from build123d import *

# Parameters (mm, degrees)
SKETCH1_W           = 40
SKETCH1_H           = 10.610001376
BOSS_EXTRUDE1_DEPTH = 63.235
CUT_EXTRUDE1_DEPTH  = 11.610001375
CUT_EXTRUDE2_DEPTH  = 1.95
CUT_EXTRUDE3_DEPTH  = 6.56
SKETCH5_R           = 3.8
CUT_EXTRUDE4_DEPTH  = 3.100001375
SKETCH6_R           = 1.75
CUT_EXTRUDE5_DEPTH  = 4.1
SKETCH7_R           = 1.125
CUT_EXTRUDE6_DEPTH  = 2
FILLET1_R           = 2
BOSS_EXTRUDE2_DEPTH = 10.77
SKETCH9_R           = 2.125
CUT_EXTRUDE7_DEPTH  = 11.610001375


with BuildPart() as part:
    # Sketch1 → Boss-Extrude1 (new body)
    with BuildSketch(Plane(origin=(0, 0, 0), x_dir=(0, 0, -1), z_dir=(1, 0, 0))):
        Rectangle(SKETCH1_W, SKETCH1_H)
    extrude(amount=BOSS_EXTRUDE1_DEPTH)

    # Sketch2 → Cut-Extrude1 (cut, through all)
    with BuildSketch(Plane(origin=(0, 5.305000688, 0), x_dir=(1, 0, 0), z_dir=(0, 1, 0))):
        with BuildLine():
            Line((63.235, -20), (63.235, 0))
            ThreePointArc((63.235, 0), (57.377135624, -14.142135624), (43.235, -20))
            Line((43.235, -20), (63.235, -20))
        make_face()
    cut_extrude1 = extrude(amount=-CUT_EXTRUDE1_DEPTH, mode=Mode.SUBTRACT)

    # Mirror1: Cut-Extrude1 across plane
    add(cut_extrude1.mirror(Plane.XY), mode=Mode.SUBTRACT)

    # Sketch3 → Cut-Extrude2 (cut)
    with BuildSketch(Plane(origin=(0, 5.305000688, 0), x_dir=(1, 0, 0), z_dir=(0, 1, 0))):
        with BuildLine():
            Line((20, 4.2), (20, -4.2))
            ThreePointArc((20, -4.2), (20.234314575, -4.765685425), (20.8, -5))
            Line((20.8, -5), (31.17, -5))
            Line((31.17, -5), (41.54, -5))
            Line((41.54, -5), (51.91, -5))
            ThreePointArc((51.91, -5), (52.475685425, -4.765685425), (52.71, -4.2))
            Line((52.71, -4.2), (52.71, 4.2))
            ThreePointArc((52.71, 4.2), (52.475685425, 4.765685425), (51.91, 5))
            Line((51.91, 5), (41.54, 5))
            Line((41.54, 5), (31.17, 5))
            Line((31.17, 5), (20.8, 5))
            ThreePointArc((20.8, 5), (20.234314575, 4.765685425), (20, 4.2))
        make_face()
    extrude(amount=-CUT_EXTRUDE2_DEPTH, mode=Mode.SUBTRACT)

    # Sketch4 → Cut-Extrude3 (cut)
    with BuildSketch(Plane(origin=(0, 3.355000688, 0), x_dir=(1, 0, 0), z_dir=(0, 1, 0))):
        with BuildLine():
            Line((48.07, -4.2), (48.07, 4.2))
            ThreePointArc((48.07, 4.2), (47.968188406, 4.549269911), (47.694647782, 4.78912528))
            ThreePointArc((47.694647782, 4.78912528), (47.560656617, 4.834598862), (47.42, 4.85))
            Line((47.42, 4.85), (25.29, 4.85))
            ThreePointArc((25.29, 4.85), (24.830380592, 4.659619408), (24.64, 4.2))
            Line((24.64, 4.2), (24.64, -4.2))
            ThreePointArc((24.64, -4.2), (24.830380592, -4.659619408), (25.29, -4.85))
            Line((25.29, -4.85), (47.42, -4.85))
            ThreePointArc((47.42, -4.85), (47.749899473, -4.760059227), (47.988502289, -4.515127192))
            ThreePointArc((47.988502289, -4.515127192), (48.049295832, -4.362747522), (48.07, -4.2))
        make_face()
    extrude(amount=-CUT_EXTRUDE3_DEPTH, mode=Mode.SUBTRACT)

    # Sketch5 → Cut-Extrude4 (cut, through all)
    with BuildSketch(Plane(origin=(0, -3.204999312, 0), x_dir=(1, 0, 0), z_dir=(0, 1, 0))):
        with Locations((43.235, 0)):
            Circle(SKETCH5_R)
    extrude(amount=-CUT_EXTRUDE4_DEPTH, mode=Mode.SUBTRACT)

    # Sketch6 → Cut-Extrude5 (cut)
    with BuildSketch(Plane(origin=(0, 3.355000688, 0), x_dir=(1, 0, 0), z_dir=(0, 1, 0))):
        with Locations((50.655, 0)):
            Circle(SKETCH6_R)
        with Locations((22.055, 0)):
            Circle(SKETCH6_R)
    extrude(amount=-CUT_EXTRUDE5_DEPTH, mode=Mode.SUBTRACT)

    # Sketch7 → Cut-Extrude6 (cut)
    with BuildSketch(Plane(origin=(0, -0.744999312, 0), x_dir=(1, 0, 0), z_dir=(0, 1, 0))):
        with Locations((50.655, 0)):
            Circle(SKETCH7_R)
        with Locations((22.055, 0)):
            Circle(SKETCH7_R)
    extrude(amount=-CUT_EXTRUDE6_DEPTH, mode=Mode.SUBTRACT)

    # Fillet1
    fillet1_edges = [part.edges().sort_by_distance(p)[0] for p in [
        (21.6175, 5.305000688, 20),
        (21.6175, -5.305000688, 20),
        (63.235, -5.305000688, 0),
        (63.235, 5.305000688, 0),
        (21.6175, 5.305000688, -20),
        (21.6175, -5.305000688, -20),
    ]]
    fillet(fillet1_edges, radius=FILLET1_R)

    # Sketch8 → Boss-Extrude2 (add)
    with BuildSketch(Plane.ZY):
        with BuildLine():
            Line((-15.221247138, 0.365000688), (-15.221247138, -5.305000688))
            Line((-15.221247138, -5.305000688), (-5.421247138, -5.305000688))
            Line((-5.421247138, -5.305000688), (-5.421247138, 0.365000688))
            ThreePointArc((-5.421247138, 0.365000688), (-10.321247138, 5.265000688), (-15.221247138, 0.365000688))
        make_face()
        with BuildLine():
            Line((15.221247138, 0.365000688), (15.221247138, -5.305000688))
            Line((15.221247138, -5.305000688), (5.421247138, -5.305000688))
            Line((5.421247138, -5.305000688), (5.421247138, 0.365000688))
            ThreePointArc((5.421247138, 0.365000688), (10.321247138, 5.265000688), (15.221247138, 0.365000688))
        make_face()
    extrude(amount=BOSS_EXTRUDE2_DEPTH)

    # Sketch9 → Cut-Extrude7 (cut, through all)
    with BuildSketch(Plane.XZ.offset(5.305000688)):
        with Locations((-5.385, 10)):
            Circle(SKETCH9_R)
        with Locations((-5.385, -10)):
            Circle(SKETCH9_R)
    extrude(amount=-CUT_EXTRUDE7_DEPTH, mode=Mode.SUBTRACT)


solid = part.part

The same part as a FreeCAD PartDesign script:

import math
import FreeCAD as App
import Part
import Sketcher
Q = App.Units.Quantity


def edges_at(feature, points):
    """Names of the edges that pass closest to the given points."""
    edges = feature.Shape.Edges
    near = lambda p: min(range(len(edges)), key=lambda i: edges[i].distToShape(Part.Vertex(*p))[0])
    return sorted({f"Edge{near(p) + 1}" for p in points})

doc = App.newDocument("Part")
body = doc.addObject("PartDesign::Body", "Body")

# Sketch on YZ plane
sketch1 = doc.addObject("Sketcher::SketchObject", "Sketch")
body.addObject(sketch1)
sketch1.AttachmentSupport = (doc.YZ_Plane, [""])
sketch1.MapMode = "FlatFace"
sketch1.addGeometry(Part.LineSegment(App.Vector(5, 20, 0), App.Vector(-5, 20, 0)), False)
sketch1.addGeometry(Part.LineSegment(App.Vector(-5, 20, 0), App.Vector(-5, -20, 0)), False)
sketch1.addGeometry(Part.LineSegment(App.Vector(-5, -20, 0), App.Vector(5, -20, 0)), False)
sketch1.addGeometry(Part.LineSegment(App.Vector(5, -20, 0), App.Vector(5, 20, 0)), False)
sketch1.addConstraint(Sketcher.Constraint("Coincident", 0, 2, 1, 1))
sketch1.addConstraint(Sketcher.Constraint("Coincident", 1, 2, 2, 1))
sketch1.addConstraint(Sketcher.Constraint("Coincident", 2, 2, 3, 1))
sketch1.addConstraint(Sketcher.Constraint("Coincident", 3, 2, 0, 1))
sketch1.addConstraint(Sketcher.Constraint("Horizontal", 0))
sketch1.addConstraint(Sketcher.Constraint("Vertical", 1))
sketch1.addConstraint(Sketcher.Constraint("Horizontal", 2))
sketch1.addConstraint(Sketcher.Constraint("Vertical", 3))
sketch1.addConstraint(Sketcher.Constraint("Symmetric", 0, 2, 2, 2, -1, 1))
sketch1.addConstraint(Sketcher.Constraint("DistanceY", 1, 2, 1, 1, Q("40 mm")))
sketch1.addConstraint(Sketcher.Constraint("DistanceX", 0, 2, 0, 1, Q("10.610001 mm")))
pad1 = doc.addObject("PartDesign::Pad", "Pad")
body.addObject(pad1)
pad1.Profile = sketch1
pad1.Length = 63.235

# Sketch on XZ plane
sketch2 = doc.addObject("Sketcher::SketchObject", "Sketch001")
body.addObject(sketch2)
sketch2.AttachmentSupport = (doc.XZ_Plane, [""])
sketch2.MapMode = "FlatFace"
sketch2.AttachmentOffset = App.Placement(App.Vector(0, 0, -5.305001), App.Rotation())
sketch2.addGeometry(Part.LineSegment(App.Vector(63, 20, 0), App.Vector(63, 0, 0)), False)
sketch2.addGeometry(Part.ArcOfCircle(Part.Circle(App.Vector(43, 0, 0), App.Vector(0, 0, 1), 20), math.radians(0), math.radians(90)), False)
sketch2.addGeometry(Part.LineSegment(App.Vector(43, 20, 0), App.Vector(63, 20, 0)), False)
sketch2.addConstraint(Sketcher.Constraint("Tangent", 0, 2, 1, 1))
sketch2.addConstraint(Sketcher.Constraint("Tangent", 1, 2, 2, 1))
sketch2.addConstraint(Sketcher.Constraint("Coincident", 2, 2, 0, 1))
sketch2.addConstraint(Sketcher.Constraint("Vertical", 0))
sketch2.addConstraint(Sketcher.Constraint("Horizontal", 2))
sketch2.addConstraint(Sketcher.Constraint("PointOnObject", 1, 3, -1))
sketch2.addConstraint(Sketcher.Constraint("Radius", 1, Q("20 mm")))
sketch2.addConstraint(Sketcher.Constraint("DistanceX", -1, 1, 1, 3, Q("43.235 mm")))
pocket1 = doc.addObject("PartDesign::Pocket", "Pocket")
body.addObject(pocket1)
pocket1.Profile = sketch2
pocket1.Type = "ThroughAll"
pocket1.Reversed = True
doc.recompute()

mirrored = doc.addObject("PartDesign::Mirrored", "Mirrored")
body.addObject(mirrored)
mirrored.Originals = [pocket1]
mirrored.MirrorPlane = (doc.XY_Plane, [""])
body.Tip = mirrored

# Sketch on XZ plane
sketch3 = doc.addObject("Sketcher::SketchObject", "Sketch002")
body.addObject(sketch3)
sketch3.AttachmentSupport = (doc.XZ_Plane, [""])
sketch3.MapMode = "FlatFace"
sketch3.AttachmentOffset = App.Placement(App.Vector(0, 0, -5.305001), App.Rotation())
sketch3.addGeometry(Part.LineSegment(App.Vector(20, -4.2, 0), App.Vector(20, 4.2, 0)), False)
sketch3.addGeometry(Part.ArcOfCircle(Part.Circle(App.Vector(20.8, 4.2, 0), App.Vector(0, 0, 1), 0.8), math.radians(90), math.radians(180)), False)
sketch3.addGeometry(Part.LineSegment(App.Vector(20.8, 5, 0), App.Vector(51.9, 5, 0)), False)
sketch3.addGeometry(Part.ArcOfCircle(Part.Circle(App.Vector(51.9, 4.2, 0), App.Vector(0, 0, 1), 0.8), math.radians(0), math.radians(90)), False)
sketch3.addGeometry(Part.LineSegment(App.Vector(52.7, 4.2, 0), App.Vector(52.7, -4.2, 0)), False)
sketch3.addGeometry(Part.ArcOfCircle(Part.Circle(App.Vector(51.9, -4.2, 0), App.Vector(0, 0, 1), 0.8), math.radians(-90), math.radians(0)), False)
sketch3.addGeometry(Part.LineSegment(App.Vector(51.9, -5, 0), App.Vector(20.8, -5, 0)), False)
sketch3.addGeometry(Part.ArcOfCircle(Part.Circle(App.Vector(20.8, -4.2, 0), App.Vector(0, 0, 1), 0.8), math.radians(180), math.radians(270)), False)
sketch3.addConstraint(Sketcher.Constraint("Tangent", 0, 2, 1, 2))
sketch3.addConstraint(Sketcher.Constraint("Tangent", 1, 1, 2, 1))
sketch3.addConstraint(Sketcher.Constraint("Tangent", 2, 2, 3, 2))
sketch3.addConstraint(Sketcher.Constraint("Tangent", 3, 1, 4, 1))
sketch3.addConstraint(Sketcher.Constraint("Tangent", 4, 2, 5, 2))
sketch3.addConstraint(Sketcher.Constraint("Tangent", 5, 1, 6, 1))
sketch3.addConstraint(Sketcher.Constraint("Tangent", 6, 2, 7, 2))
sketch3.addConstraint(Sketcher.Constraint("Tangent", 7, 1, 0, 1))
sketch3.addConstraint(Sketcher.Constraint("Vertical", 0))
sketch3.addConstraint(Sketcher.Constraint("Horizontal", 2))
sketch3.addConstraint(Sketcher.Constraint("Vertical", 4))
sketch3.addConstraint(Sketcher.Constraint("Horizontal", 6))
sketch3.addConstraint(Sketcher.Constraint("Equal", 1, 3))
sketch3.addConstraint(Sketcher.Constraint("Equal", 3, 5))
sketch3.addConstraint(Sketcher.Constraint("Equal", 5, 7))
sketch3.addConstraint(Sketcher.Constraint("Radius", 1, Q("0.8 mm")))
sketch3.addConstraint(Sketcher.Constraint("DistanceY", 0, 1, 0, 2, Q("8.4 mm")))
sketch3.addConstraint(Sketcher.Constraint("DistanceX", -1, 1, 0, 2, Q("20 mm")))
sketch3.addConstraint(Sketcher.Constraint("DistanceY", -1, 1, 1, 1, Q("5 mm")))
sketch3.addConstraint(Sketcher.Constraint("DistanceX", 2, 1, 2, 2, Q("31.11 mm")))
pocket2 = doc.addObject("PartDesign::Pocket", "Pocket001")
body.addObject(pocket2)
pocket2.Profile = sketch3
pocket2.Length = 1.95
pocket2.Reversed = True

# Sketch on XZ plane
sketch4 = doc.addObject("Sketcher::SketchObject", "Sketch003")
body.addObject(sketch4)
sketch4.AttachmentSupport = (doc.XZ_Plane, [""])
sketch4.MapMode = "FlatFace"
sketch4.AttachmentOffset = App.Placement(App.Vector(0, 0, -3.355001), App.Rotation())
sketch4.addGeometry(Part.LineSegment(App.Vector(48.07, 4.2, 0), App.Vector(48.07, -4.2, 0)), False)
sketch4.addGeometry(Part.ArcOfCircle(Part.Circle(App.Vector(47.42, -4.2, 0), App.Vector(0, 0, 1), 0.65), math.radians(-65), math.radians(0)), False)
sketch4.addGeometry(Part.ArcOfCircle(Part.Circle(App.Vector(47.42, -4.2, 0), App.Vector(0, 0, 1), 0.65), math.radians(-90), math.radians(-65)), False)
sketch4.addGeometry(Part.LineSegment(App.Vector(47.42, -4.85, 0), App.Vector(25.29, -4.85, 0)), False)
sketch4.addGeometry(Part.ArcOfCircle(Part.Circle(App.Vector(25.29, -4.2, 0), App.Vector(0, 0, 1), 0.65), math.radians(180), math.radians(270)), False)
sketch4.addGeometry(Part.LineSegment(App.Vector(24.64, -4.2, 0), App.Vector(24.64, 4.2, 0)), False)
sketch4.addGeometry(Part.ArcOfCircle(Part.Circle(App.Vector(25.29, 4.2, 0), App.Vector(0, 0, 1), 0.65), math.radians(90), math.radians(180)), False)
sketch4.addGeometry(Part.LineSegment(App.Vector(25.29, 4.85, 0), App.Vector(47.42, 4.85, 0)), False)
sketch4.addGeometry(Part.ArcOfCircle(Part.Circle(App.Vector(47.42, 4.2, 0), App.Vector(0, 0, 1), 0.65), math.radians(29), math.radians(90)), False)
sketch4.addGeometry(Part.ArcOfCircle(Part.Circle(App.Vector(47.42, 4.2, 0), App.Vector(0, 0, 1), 0.65), math.radians(0), math.radians(29)), False)
sketch4.addConstraint(Sketcher.Constraint("Tangent", 0, 2, 1, 2))
sketch4.addConstraint(Sketcher.Constraint("Tangent", 1, 1, 2, 2))
sketch4.addConstraint(Sketcher.Constraint("Tangent", 2, 1, 3, 1))
sketch4.addConstraint(Sketcher.Constraint("Tangent", 3, 2, 4, 2))
sketch4.addConstraint(Sketcher.Constraint("Tangent", 4, 1, 5, 1))
sketch4.addConstraint(Sketcher.Constraint("Tangent", 5, 2, 6, 2))
sketch4.addConstraint(Sketcher.Constraint("Tangent", 6, 1, 7, 1))
sketch4.addConstraint(Sketcher.Constraint("Tangent", 7, 2, 8, 2))
sketch4.addConstraint(Sketcher.Constraint("Tangent", 8, 1, 9, 2))
sketch4.addConstraint(Sketcher.Constraint("Tangent", 9, 1, 0, 1))
sketch4.addConstraint(Sketcher.Constraint("Vertical", 0))
sketch4.addConstraint(Sketcher.Constraint("Horizontal", 3))
sketch4.addConstraint(Sketcher.Constraint("Vertical", 5))
sketch4.addConstraint(Sketcher.Constraint("Horizontal", 7))
sketch4.addConstraint(Sketcher.Constraint("Equal", 1, 2))
sketch4.addConstraint(Sketcher.Constraint("Equal", 2, 4))
sketch4.addConstraint(Sketcher.Constraint("Equal", 4, 6))
sketch4.addConstraint(Sketcher.Constraint("Equal", 6, 8))
sketch4.addConstraint(Sketcher.Constraint("Equal", 8, 9))
sketch4.addConstraint(Sketcher.Constraint("Radius", 1, Q("0.65 mm")))
sketch4.addConstraint(Sketcher.Constraint("DistanceY", 0, 2, 0, 1, Q("8.4 mm")))
sketch4.addConstraint(Sketcher.Constraint("DistanceX", 3, 2, 3, 1, Q("22.13 mm")))
sketch4.addConstraint(Sketcher.Constraint("DistanceY", 1, 3, -1, 1, Q("4.2 mm")))
sketch4.addConstraint(Sketcher.Constraint("DistanceX", -1, 1, 1, 3, Q("47.42 mm")))
sketch4.addConstraint(Sketcher.Constraint("DistanceX", -1, 1, 1, 1, Q("47.694648 mm")))
sketch4.addConstraint(Sketcher.Constraint("DistanceX", -1, 1, 8, 1, Q("47.988502 mm")))
pocket3 = doc.addObject("PartDesign::Pocket", "Pocket002")
body.addObject(pocket3)
pocket3.Profile = sketch4
pocket3.Length = 6.56
pocket3.Reversed = True

# Sketch on XZ plane
sketch5 = doc.addObject("Sketcher::SketchObject", "Sketch004")
body.addObject(sketch5)
sketch5.AttachmentSupport = (doc.XZ_Plane, [""])
sketch5.MapMode = "FlatFace"
sketch5.AttachmentOffset = App.Placement(App.Vector(0, 0, 3.204999), App.Rotation())
sketch5.addGeometry(Part.Circle(App.Vector(43.2, 0, 0), App.Vector(0, 0, 1), 3.8), False)
sketch5.addConstraint(Sketcher.Constraint("PointOnObject", 0, 3, -1))
sketch5.addConstraint(Sketcher.Constraint("Diameter", 0, Q("7.6 mm")))
sketch5.addConstraint(Sketcher.Constraint("DistanceX", -1, 1, 0, 3, Q("43.235 mm")))
pocket4 = doc.addObject("PartDesign::Pocket", "Pocket003")
body.addObject(pocket4)
pocket4.Profile = sketch5
pocket4.Type = "ThroughAll"
pocket4.Reversed = True

# Sketch on XZ plane
sketch6 = doc.addObject("Sketcher::SketchObject", "Sketch005")
body.addObject(sketch6)
sketch6.AttachmentSupport = (doc.XZ_Plane, [""])
sketch6.MapMode = "FlatFace"
sketch6.AttachmentOffset = App.Placement(App.Vector(0, 0, -3.355001), App.Rotation())
sketch6.addGeometry(Part.Circle(App.Vector(50.7, 0, 0), App.Vector(0, 0, 1), 1.8), False)
sketch6.addGeometry(Part.Circle(App.Vector(22.1, 0, 0), App.Vector(0, 0, 1), 1.8), False)
sketch6.addConstraint(Sketcher.Constraint("Equal", 0, 1))
sketch6.addConstraint(Sketcher.Constraint("PointOnObject", 0, 3, -1))
sketch6.addConstraint(Sketcher.Constraint("PointOnObject", 1, 3, -1))
sketch6.addConstraint(Sketcher.Constraint("Diameter", 0, Q("3.5 mm")))
sketch6.addConstraint(Sketcher.Constraint("DistanceX", 1, 3, 0, 3, Q("28.6 mm")))
sketch6.addConstraint(Sketcher.Constraint("DistanceX", -1, 1, 0, 3, Q("50.655 mm")))
pocket5 = doc.addObject("PartDesign::Pocket", "Pocket004")
body.addObject(pocket5)
pocket5.Profile = sketch6
pocket5.Length = 4.1
pocket5.Reversed = True

# Sketch on XZ plane
sketch7 = doc.addObject("Sketcher::SketchObject", "Sketch006")
body.addObject(sketch7)
sketch7.AttachmentSupport = (doc.XZ_Plane, [""])
sketch7.MapMode = "FlatFace"
sketch7.AttachmentOffset = App.Placement(App.Vector(0, 0, 0.744999), App.Rotation())
sketch7.addGeometry(Part.Circle(App.Vector(50.7, 0, 0), App.Vector(0, 0, 1), 1.1), False)
sketch7.addGeometry(Part.Circle(App.Vector(22.1, 0, 0), App.Vector(0, 0, 1), 1.1), False)
sketch7.addConstraint(Sketcher.Constraint("Equal", 0, 1))
sketch7.addConstraint(Sketcher.Constraint("PointOnObject", 0, 3, -1))
sketch7.addConstraint(Sketcher.Constraint("PointOnObject", 1, 3, -1))
sketch7.addConstraint(Sketcher.Constraint("Diameter", 0, Q("2.25 mm")))
sketch7.addConstraint(Sketcher.Constraint("DistanceX", 1, 3, 0, 3, Q("28.6 mm")))
sketch7.addConstraint(Sketcher.Constraint("DistanceX", -1, 1, 0, 3, Q("50.655 mm")))
pocket6 = doc.addObject("PartDesign::Pocket", "Pocket005")
body.addObject(pocket6)
pocket6.Profile = sketch7
pocket6.Length = 2
pocket6.Reversed = True
doc.recompute()

fillet = doc.addObject("PartDesign::Fillet", "Fillet")
body.addObject(fillet)
fillet.Base = (pocket6, edges_at(pocket6, [
    (21.617, 5.305, 20),
    (21.617, -5.305, 20),
    (57.377, -5.305, 14.142),
    (57.377, 5.305, 14.142),
    (21.617, 5.305, -20),
    (21.617, -5.305, -20),
]))
fillet.Radius = 2

# Sketch on YZ plane
sketch8 = doc.addObject("Sketcher::SketchObject", "Sketch007")
body.addObject(sketch8)
sketch8.AttachmentSupport = (doc.YZ_Plane, [""])
sketch8.MapMode = "FlatFace"
sketch8.addGeometry(Part.LineSegment(App.Vector(0.4, -15.2, 0), App.Vector(-5.3, -15.2, 0)), False)
sketch8.addGeometry(Part.LineSegment(App.Vector(-5.3, -15.2, 0), App.Vector(-5.3, -5.4, 0)), False)
sketch8.addGeometry(Part.LineSegment(App.Vector(-5.3, -5.4, 0), App.Vector(0.4, -5.4, 0)), False)
sketch8.addGeometry(Part.ArcOfCircle(Part.Circle(App.Vector(0.4, -10.3, 0), App.Vector(0, 0, 1), 4.9), math.radians(-90), math.radians(90)), False)
sketch8.addGeometry(Part.LineSegment(App.Vector(-5.3, 15.2, 0), App.Vector(0.4, 15.2, 0)), False)
sketch8.addGeometry(Part.ArcOfCircle(Part.Circle(App.Vector(0.4, 10.3, 0), App.Vector(0, 0, 1), 4.9), math.radians(-90), math.radians(90)), False)
sketch8.addGeometry(Part.LineSegment(App.Vector(0.4, 5.4, 0), App.Vector(-5.3, 5.4, 0)), False)
sketch8.addGeometry(Part.LineSegment(App.Vector(-5.3, 5.4, 0), App.Vector(-5.3, 15.2, 0)), False)
sketch8.addConstraint(Sketcher.Constraint("Coincident", 0, 2, 1, 1))
sketch8.addConstraint(Sketcher.Constraint("Coincident", 1, 2, 2, 1))
sketch8.addConstraint(Sketcher.Constraint("Tangent", 2, 2, 3, 2))
sketch8.addConstraint(Sketcher.Constraint("Tangent", 3, 1, 0, 1))
sketch8.addConstraint(Sketcher.Constraint("Tangent", 4, 2, 5, 2))
sketch8.addConstraint(Sketcher.Constraint("Tangent", 5, 1, 6, 1))
sketch8.addConstraint(Sketcher.Constraint("Coincident", 6, 2, 7, 1))
sketch8.addConstraint(Sketcher.Constraint("Coincident", 7, 2, 4, 1))
sketch8.addConstraint(Sketcher.Constraint("Horizontal", 0))
sketch8.addConstraint(Sketcher.Constraint("Vertical", 1))
sketch8.addConstraint(Sketcher.Constraint("Horizontal", 2))
sketch8.addConstraint(Sketcher.Constraint("Horizontal", 4))
sketch8.addConstraint(Sketcher.Constraint("Horizontal", 6))
sketch8.addConstraint(Sketcher.Constraint("Vertical", 7))
sketch8.addConstraint(Sketcher.Constraint("Equal", 3, 5))
sketch8.addConstraint(Sketcher.Constraint("Symmetric", 3, 3, 5, 3, -1))
sketch8.addConstraint(Sketcher.Constraint("Vertical", 1, 2, 6, 2))
sketch8.addConstraint(Sketcher.Constraint("Radius", 3, Q("4.9 mm")))
sketch8.addConstraint(Sketcher.Constraint("DistanceX", 0, 2, 0, 1, Q("5.670001 mm")))
sketch8.addConstraint(Sketcher.Constraint("DistanceX", -1, 1, 3, 3, Q("0.365001 mm")))
sketch8.addConstraint(Sketcher.Constraint("DistanceY", 3, 3, -1, 1, Q("10.321247 mm")))
pad2 = doc.addObject("PartDesign::Pad", "Pad001")
body.addObject(pad2)
pad2.Profile = sketch8
pad2.Length = 10.77
pad2.Reversed = True

# Sketch on XZ plane
sketch9 = doc.addObject("Sketcher::SketchObject", "Sketch008")
body.addObject(sketch9)
sketch9.AttachmentSupport = (doc.XZ_Plane, [""])
sketch9.MapMode = "FlatFace"
sketch9.AttachmentOffset = App.Placement(App.Vector(0, 0, 5.305001), App.Rotation())
sketch9.addGeometry(Part.Circle(App.Vector(-5.4, 10, 0), App.Vector(0, 0, 1), 2.1), False)
sketch9.addGeometry(Part.Circle(App.Vector(-5.4, -10, 0), App.Vector(0, 0, 1), 2.1), False)
sketch9.addConstraint(Sketcher.Constraint("Equal", 0, 1))
sketch9.addConstraint(Sketcher.Constraint("Symmetric", 0, 3, 1, 3, -1))
sketch9.addConstraint(Sketcher.Constraint("Diameter", 0, Q("4.25 mm")))
sketch9.addConstraint(Sketcher.Constraint("DistanceY", -1, 1, 0, 3, Q("10 mm")))
sketch9.addConstraint(Sketcher.Constraint("DistanceX", 0, 3, -1, 1, Q("5.385 mm")))
pocket7 = doc.addObject("PartDesign::Pocket", "Pocket006")
body.addObject(pocket7)
pocket7.Profile = sketch9
pocket7.Type = "ThroughAll"

doc.recompute()
